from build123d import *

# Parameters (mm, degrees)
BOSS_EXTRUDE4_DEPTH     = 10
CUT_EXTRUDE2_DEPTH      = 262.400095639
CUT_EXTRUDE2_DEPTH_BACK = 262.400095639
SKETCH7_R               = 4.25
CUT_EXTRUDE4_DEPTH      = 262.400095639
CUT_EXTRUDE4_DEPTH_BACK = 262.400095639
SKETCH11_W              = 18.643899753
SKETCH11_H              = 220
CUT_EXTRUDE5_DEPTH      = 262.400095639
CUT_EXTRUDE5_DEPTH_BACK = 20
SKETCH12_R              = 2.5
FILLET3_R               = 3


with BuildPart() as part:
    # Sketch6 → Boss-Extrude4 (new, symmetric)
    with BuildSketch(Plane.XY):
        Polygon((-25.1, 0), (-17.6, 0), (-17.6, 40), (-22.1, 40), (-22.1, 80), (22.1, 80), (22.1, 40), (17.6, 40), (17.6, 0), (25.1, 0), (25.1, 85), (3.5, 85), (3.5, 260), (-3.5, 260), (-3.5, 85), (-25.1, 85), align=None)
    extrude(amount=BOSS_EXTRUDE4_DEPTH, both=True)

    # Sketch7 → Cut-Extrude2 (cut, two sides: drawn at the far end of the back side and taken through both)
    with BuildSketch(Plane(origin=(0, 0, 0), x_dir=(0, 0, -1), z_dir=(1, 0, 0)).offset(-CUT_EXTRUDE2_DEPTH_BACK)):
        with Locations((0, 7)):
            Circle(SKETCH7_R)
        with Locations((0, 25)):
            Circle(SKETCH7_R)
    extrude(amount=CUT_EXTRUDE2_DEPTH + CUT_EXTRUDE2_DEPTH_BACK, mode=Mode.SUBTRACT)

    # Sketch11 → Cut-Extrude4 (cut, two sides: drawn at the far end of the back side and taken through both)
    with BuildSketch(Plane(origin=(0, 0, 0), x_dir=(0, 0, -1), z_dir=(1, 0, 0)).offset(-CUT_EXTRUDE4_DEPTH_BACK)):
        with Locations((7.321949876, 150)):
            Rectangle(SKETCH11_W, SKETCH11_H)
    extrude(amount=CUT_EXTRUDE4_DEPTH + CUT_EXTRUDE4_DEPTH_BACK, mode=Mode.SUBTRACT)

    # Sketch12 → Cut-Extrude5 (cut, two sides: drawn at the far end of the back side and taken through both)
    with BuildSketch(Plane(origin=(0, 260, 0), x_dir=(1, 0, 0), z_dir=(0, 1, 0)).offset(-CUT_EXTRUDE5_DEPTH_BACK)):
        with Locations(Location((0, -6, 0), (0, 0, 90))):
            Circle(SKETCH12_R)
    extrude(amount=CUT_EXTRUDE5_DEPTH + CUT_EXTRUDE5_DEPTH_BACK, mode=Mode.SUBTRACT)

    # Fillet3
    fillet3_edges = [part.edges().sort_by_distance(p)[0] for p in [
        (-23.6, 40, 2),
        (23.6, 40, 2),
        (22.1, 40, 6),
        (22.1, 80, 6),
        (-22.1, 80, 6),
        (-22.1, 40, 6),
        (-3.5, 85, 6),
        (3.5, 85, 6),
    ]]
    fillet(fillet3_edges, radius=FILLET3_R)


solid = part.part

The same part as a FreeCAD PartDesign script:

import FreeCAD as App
import Part
import Sketcher
from FreeCAD import Vector


def edges_at(feature, points):
    """Names of the edges that pass closest to the given points."""
    edges = feature.Shape.Edges
    near = lambda p: min(range(len(edges)), key=lambda i: edges[i].distToShape(Part.Vertex(*p))[0])
    return sorted({f"Edge{near(p) + 1}" for p in points})


def add_polygon(sketch, points):
    """Adds a closed chain of lines whose ends are joined by coincident constraints."""
    first, n = sketch.GeometryCount, len(points)
    for a, b in zip(points, points[1:] + points[:1]):
        sketch.addGeometry(Part.LineSegment(App.Vector(*a, 0), App.Vector(*b, 0)), False)
    for i in range(n):
        sketch.addConstraint(Sketcher.Constraint("Coincident", first + i, 2, first + (i + 1) % n, 1))

doc = App.newDocument("Part")
body = doc.addObject("PartDesign::Body", "Body")

sketch1 = doc.addObject("Sketcher::SketchObject", "Sketch")
body.addObject(sketch1)
sketch1.AttachmentSupport = (doc.XY_Plane, [""])
sketch1.MapMode = "FlatFace"
add_polygon(sketch1, [(-25.1, 0), (-17.6, 0), (-17.6, 40), (-22.1, 40), (-22.1, 80), (22.1, 80), (22.1, 40), (17.6, 40), (17.6, 0), (25.1, 0), (25.1, 85), (3.5, 85), (3.5, 260), (-3.5, 260), (-3.5, 85), (-25.1, 85)])
sketch1.addConstraint(Sketcher.Constraint("Horizontal", 0))
sketch1.addConstraint(Sketcher.Constraint("Vertical", 1))
sketch1.addConstraint(Sketcher.Constraint("Horizontal", 2))
sketch1.addConstraint(Sketcher.Constraint("Vertical", 3))
sketch1.addConstraint(Sketcher.Constraint("Horizontal", 4))
sketch1.addConstraint(Sketcher.Constraint("Vertical", 5))
sketch1.addConstraint(Sketcher.Constraint("Horizontal", 6))
sketch1.addConstraint(Sketcher.Constraint("Vertical", 7))
sketch1.addConstraint(Sketcher.Constraint("Horizontal", 8))
sketch1.addConstraint(Sketcher.Constraint("Vertical", 9))
sketch1.addConstraint(Sketcher.Constraint("Horizontal", 10))
sketch1.addConstraint(Sketcher.Constraint("Vertical", 11))
sketch1.addConstraint(Sketcher.Constraint("Horizontal", 12))
sketch1.addConstraint(Sketcher.Constraint("Vertical", 13))
sketch1.addConstraint(Sketcher.Constraint("Horizontal", 14))
sketch1.addConstraint(Sketcher.Constraint("Vertical", 15))
sketch1.addConstraint(Sketcher.Constraint("Symmetric", 0, 2, 7, 2, -1, 1))
sketch1.addConstraint(Sketcher.Constraint("Symmetric", 2, 2, 5, 2, -2))
sketch1.addConstraint(Sketcher.Constraint("Symmetric", 10, 2, 13, 2, -2))
sketch1.addConstraint(Sketcher.Constraint("Symmetric", 8, 2, 15, 2, -2))
sketch1.addConstraint(Sketcher.Constraint("Equal", 1, 3))
sketch1.addConstraint(Sketcher.Constraint("DistanceX", 12, 2, 12, 1, 7.0))
sketch1.addConstraint(Sketcher.Constraint("DistanceY", 1, 1, 1, 2, 40.0))
sketch1.addConstraint(Sketcher.Constraint("DistanceY", 9, 1, 9, 2, 85.0))
sketch1.addConstraint(Sketcher.Constraint("DistanceY", 11, 1, 11, 2, 175.0))
sketch1.addConstraint(Sketcher.Constraint("DistanceX", 0, 1, 0, 2, 7.5))
sketch1.addConstraint(Sketcher.Constraint("DistanceX", 2, 2, 2, 1, 4.5))
sketch1.addConstraint(Sketcher.Constraint("DistanceX", 4, 1, 4, 2, 44.2))
pad1 = doc.addObject("PartDesign::Pad", "Pad")
body.addObject(pad1)
pad1.Profile = sketch1
pad1.Length = 20
pad1.Midplane = True

sketch2 = doc.addObject("Sketcher::SketchObject", "Sketch001")
body.addObject(sketch2)
sketch2.AttachmentSupport = (doc.YZ_Plane, [""])
sketch2.MapMode = "FlatFace"
sketch2.addGeometry(Part.Circle(Vector(7, 0, 0), Vector(0, 0, 1), 4.2), False)
sketch2.addGeometry(Part.Circle(Vector(25, 0, 0), Vector(0, 0, 1), 4.2), False)
sketch2.addConstraint(Sketcher.Constraint("Equal", 0, 1))
sketch2.addConstraint(Sketcher.Constraint("PointOnObject", 0, 3, -1))
sketch2.addConstraint(Sketcher.Constraint("PointOnObject", 1, 3, -1))
sketch2.addConstraint(Sketcher.Constraint("Diameter", 0, 8.5))
sketch2.addConstraint(Sketcher.Constraint("DistanceX", -1, 1, 0, 3, 7.0))
sketch2.addConstraint(Sketcher.Constraint("DistanceX", -1, 1, 1, 3, 25.0))
pocket1 = doc.addObject("PartDesign::Pocket", "Pocket")
body.addObject(pocket1)
pocket1.Profile = sketch2
pocket1.Type = "ThroughAll"
pocket1.Midplane = True

sketch3 = doc.addObject("Sketcher::SketchObject", "Sketch002")
body.addObject(sketch3)
sketch3.AttachmentSupport = (doc.YZ_Plane, [""])
sketch3.MapMode = "FlatFace"
add_polygon(sketch3, [(260, 2), (40, 2), (40, -17), (260, -17)])
sketch3.addConstraint(Sketcher.Constraint("Horizontal", 0))
sketch3.addConstraint(Sketcher.Constraint("Vertical", 1))
sketch3.addConstraint(Sketcher.Constraint("Horizontal", 2))
sketch3.addConstraint(Sketcher.Constraint("Vertical", 3))
sketch3.addConstraint(Sketcher.Constraint("DistanceX", 0, 2, 0, 1, 220.0))
sketch3.addConstraint(Sketcher.Constraint("DistanceX", -1, 1, 0, 2, 40.0))
sketch3.addConstraint(Sketcher.Constraint("DistanceY", -1, 1, 0, 2, 2.0))
sketch3.addConstraint(Sketcher.Constraint("DistanceY", 1, 2, 1, 1, 18.6439))
pocket2 = doc.addObject("PartDesign::Pocket", "Pocket001")
body.addObject(pocket2)
pocket2.Profile = sketch3
pocket2.Type = "ThroughAll"
pocket2.Midplane = True

sketch4 = doc.addObject("Sketcher::SketchObject", "Sketch003")
body.addObject(sketch4)
sketch4.AttachmentSupport = (doc.XZ_Plane, [""])
sketch4.MapMode = "FlatFace"
sketch4.AttachmentOffset = App.Placement(Vector(0, 0, -260), App.Rotation())
sketch4.addGeometry(Part.Circle(Vector(0, 6, 0), Vector(0, 0, 1), 2.5), False)
sketch4.addConstraint(Sketcher.Constraint("PointOnObject", 0, 3, -2))
sketch4.addConstraint(Sketcher.Constraint("Diameter", 0, 5.0))
sketch4.addConstraint(Sketcher.Constraint("DistanceY", -1, 1, 0, 3, 6.0))
pocket3 = doc.addObject("PartDesign::Pocket", "Pocket002")
body.addObject(pocket3)
pocket3.Profile = sketch4
pocket3.Type = "TwoLengths"
pocket3.Length = 262.400096
pocket3.Length2 = 20
doc.recompute()

fillet = doc.addObject("PartDesign::Fillet", "Fillet")
body.addObject(fillet)
fillet.Base = (pocket3, edges_at(pocket3, [
    (-23.6, 40, 2),
    (23.6, 40, 2),
    (22.1, 40, 6),
    (22.1, 80, 6),
    (-22.1, 80, 6),
    (-22.1, 40, 6),
    (-3.5, 85, 6),
    (3.5, 85, 6),
]))
fillet.Radius = 3

doc.recompute()
